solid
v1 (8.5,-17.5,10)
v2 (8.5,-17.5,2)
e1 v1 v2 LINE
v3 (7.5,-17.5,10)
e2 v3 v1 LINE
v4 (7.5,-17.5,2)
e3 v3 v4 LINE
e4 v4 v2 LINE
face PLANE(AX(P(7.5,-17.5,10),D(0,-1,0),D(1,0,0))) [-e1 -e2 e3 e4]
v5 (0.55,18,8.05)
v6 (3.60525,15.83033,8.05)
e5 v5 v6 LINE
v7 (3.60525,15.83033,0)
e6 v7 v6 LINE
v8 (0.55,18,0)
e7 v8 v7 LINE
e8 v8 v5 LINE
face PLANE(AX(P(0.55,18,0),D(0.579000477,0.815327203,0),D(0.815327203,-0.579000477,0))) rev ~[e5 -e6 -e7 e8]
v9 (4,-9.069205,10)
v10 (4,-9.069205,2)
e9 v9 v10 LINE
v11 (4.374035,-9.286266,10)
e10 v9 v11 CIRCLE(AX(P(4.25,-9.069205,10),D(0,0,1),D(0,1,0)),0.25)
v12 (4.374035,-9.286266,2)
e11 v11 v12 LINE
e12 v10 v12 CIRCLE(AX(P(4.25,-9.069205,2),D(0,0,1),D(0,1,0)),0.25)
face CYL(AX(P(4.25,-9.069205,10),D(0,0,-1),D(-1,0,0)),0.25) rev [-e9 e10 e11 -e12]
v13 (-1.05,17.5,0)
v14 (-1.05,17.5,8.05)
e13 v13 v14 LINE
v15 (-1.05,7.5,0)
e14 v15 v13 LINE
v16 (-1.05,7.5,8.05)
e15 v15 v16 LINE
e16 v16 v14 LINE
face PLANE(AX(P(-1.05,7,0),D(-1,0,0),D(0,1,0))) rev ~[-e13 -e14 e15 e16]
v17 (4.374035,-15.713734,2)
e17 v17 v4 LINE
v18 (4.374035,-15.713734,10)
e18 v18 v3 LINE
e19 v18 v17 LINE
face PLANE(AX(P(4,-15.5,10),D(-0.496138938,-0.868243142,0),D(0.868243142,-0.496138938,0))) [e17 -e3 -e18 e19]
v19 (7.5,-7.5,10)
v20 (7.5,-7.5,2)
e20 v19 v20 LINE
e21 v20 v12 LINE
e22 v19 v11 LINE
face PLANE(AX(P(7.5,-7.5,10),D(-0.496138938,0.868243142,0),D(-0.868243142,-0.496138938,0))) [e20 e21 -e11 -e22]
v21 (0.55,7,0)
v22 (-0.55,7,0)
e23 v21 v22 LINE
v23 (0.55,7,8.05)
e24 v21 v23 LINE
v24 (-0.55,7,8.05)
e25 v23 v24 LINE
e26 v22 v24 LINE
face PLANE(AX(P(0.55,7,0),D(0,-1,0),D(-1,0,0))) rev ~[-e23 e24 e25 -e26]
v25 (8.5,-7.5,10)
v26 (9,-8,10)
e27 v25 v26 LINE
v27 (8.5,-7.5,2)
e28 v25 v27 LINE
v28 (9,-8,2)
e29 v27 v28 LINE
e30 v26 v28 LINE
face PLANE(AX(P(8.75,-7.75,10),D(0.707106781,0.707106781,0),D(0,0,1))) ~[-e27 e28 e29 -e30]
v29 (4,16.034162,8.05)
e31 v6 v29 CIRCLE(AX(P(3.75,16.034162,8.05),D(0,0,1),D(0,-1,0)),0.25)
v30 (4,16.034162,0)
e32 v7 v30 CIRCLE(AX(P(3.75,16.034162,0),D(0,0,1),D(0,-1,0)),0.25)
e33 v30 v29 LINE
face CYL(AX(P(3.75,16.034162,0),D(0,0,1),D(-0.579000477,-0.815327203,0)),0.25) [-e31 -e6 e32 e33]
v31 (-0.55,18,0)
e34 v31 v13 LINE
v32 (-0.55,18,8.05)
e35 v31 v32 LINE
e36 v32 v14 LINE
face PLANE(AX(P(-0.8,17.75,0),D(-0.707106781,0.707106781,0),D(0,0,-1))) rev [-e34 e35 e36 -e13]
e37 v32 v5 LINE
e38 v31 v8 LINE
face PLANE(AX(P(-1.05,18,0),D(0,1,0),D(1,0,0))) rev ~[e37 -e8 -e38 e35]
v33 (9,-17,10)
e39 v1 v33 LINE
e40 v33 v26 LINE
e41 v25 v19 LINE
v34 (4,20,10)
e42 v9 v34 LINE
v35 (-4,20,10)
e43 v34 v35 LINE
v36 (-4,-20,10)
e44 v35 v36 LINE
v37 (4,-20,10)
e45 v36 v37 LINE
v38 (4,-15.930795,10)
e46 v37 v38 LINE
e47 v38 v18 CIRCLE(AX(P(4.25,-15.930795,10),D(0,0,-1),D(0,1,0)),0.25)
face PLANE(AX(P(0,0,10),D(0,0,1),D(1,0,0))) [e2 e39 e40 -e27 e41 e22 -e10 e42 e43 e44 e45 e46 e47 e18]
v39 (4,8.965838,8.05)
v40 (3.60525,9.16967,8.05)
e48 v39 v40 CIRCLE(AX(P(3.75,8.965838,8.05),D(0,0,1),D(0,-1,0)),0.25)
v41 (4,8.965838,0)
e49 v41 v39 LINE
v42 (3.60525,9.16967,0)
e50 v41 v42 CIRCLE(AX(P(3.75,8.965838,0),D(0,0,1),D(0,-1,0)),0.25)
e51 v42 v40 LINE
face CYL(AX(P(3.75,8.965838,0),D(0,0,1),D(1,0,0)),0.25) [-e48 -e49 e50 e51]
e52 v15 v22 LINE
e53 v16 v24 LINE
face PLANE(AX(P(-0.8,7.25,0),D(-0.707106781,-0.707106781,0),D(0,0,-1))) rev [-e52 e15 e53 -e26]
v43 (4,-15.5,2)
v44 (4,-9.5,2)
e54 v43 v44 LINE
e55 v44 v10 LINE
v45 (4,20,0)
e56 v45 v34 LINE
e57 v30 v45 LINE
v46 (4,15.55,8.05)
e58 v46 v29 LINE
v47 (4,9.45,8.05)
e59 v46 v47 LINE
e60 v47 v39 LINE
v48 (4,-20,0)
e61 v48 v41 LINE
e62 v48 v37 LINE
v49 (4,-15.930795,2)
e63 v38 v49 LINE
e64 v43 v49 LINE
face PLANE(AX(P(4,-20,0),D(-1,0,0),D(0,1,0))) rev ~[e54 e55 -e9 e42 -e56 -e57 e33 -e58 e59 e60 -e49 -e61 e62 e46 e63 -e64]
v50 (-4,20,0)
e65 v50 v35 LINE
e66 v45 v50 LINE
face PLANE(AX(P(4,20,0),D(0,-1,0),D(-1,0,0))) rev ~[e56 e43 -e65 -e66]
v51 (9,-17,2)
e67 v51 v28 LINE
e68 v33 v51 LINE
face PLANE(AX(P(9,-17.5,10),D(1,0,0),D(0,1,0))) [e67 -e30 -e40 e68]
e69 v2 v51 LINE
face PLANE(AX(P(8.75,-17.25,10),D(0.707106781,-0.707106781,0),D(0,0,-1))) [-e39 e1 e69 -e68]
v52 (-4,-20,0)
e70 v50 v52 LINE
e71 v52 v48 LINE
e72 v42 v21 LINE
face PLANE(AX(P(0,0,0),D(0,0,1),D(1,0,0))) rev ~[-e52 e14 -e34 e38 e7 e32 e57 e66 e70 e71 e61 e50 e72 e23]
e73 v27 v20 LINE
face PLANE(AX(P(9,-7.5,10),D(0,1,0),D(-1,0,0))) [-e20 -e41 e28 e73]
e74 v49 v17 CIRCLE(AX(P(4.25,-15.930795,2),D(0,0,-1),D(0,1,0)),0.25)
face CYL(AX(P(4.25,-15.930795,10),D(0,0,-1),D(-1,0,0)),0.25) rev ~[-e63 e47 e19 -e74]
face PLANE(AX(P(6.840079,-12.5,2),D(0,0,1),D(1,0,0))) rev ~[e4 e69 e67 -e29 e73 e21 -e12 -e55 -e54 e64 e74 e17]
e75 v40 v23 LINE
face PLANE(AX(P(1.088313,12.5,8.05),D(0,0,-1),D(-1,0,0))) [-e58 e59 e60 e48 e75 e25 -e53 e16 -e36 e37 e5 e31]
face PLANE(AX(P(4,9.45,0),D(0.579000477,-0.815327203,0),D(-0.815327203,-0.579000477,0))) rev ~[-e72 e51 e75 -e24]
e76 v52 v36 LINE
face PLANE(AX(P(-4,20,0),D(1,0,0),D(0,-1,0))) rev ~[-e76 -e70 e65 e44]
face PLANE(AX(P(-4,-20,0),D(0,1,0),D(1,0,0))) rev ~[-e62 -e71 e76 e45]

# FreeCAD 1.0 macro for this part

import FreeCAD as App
import Part
import Sketcher
Q = App.Units.Quantity


def edges_at(feature, points):
    """Names of the edges that pass closest to the given points."""
    edges = feature.Shape.Edges
    near = lambda p: min(range(len(edges)), key=lambda i: edges[i].distToShape(Part.Vertex(*p))[0])
    return sorted({f"Edge{near(p) + 1}" for p in points})

doc = App.newDocument("Part")
body = doc.addObject("PartDesign::Body", "Body")

# Sketch on XY plane
sketch1 = body.newObject("Sketcher::SketchObject", "Sketch")
sketch1.AttachmentSupport = (doc.getObject("XY_Plane"), [""])
sketch1.MapMode = "FlatFace"
sketch1.addGeometry([
    Part.LineSegment(App.Vector(-4, 20, 0), App.Vector(-4, -20, 0)),
    Part.LineSegment(App.Vector(-4, -20, 0), App.Vector(4, -20, 0)),
    Part.LineSegment(App.Vector(4, -20, 0), App.Vector(4, 20, 0)),
    Part.LineSegment(App.Vector(4, 20, 0), App.Vector(-4, 20, 0)),
], False)
sketch1.addConstraint([
    Sketcher.Constraint("Coincident", 0, 2, 1, 1),
    Sketcher.Constraint("Coincident", 1, 2, 2, 1),
    Sketcher.Constraint("Coincident", 2, 2, 3, 1),
    Sketcher.Constraint("Coincident", 3, 2, 0, 1),
    Sketcher.Constraint("Vertical", 0),
    Sketcher.Constraint("Horizontal", 1),
    Sketcher.Constraint("Vertical", 2),
    Sketcher.Constraint("Horizontal", 3),
    Sketcher.Constraint("Symmetric", 0, 2, 2, 2, -1, 1),
    Sketcher.Constraint("DistanceX", 0, 2, -1, 1, Q("4 mm")),
    Sketcher.Constraint("DistanceY", 0, 2, 0, 1, Q("40 mm")),
])
pad1 = body.newObject("PartDesign::Pad", "Pad")
pad1.Profile = sketch1
pad1.Length = 10

# Sketch on XY plane
sketch2 = body.newObject("Sketcher::SketchObject", "Sketch001")
sketch2.AttachmentSupport = (doc.getObject("XY_Plane"), [""])
sketch2.MapMode = "FlatFace"
sketch2.AttachmentOffset = App.Placement(App.Vector(0, 0, 10), App.Rotation())
sketch2.addGeometry([
    Part.LineSegment(App.Vector(4, -9.5, 0), App.Vector(4, -15.5, 0)),  # 0
    Part.LineSegment(App.Vector(4, -15.5, 0), App.Vector(7.5, -17.5, 0)),  # 1
    Part.LineSegment(App.Vector(7.5, -17.5, 0), App.Vector(9, -17.5, 0)),  # 2
    Part.LineSegment(App.Vector(9, -17.5, 0), App.Vector(9, -7.5, 0)),  # 3
    Part.LineSegment(App.Vector(9, -7.5, 0), App.Vector(7.5, -7.5, 0)),  # 4
    Part.LineSegment(App.Vector(7.5, -7.5, 0), App.Vector(4, -9.5, 0)),  # 5
], False)
sketch2.addConstraint([
    Sketcher.Constraint("Coincident", 0, 2, 1, 1),
    Sketcher.Constraint("Coincident", 1, 2, 2, 1),
    Sketcher.Constraint("Coincident", 2, 2, 3, 1),
    Sketcher.Constraint("Coincident", 3, 2, 4, 1),
    Sketcher.Constraint("Coincident", 4, 2, 5, 1),
    Sketcher.Constraint("Coincident", 5, 2, 0, 1),
    Sketcher.Constraint("Vertical", 0),
    Sketcher.Constraint("Horizontal", 2),
    Sketcher.Constraint("Vertical", 3),
    Sketcher.Constraint("Horizontal", 4),
    Sketcher.Constraint("Vertical", 1, 2, 4, 2),
    Sketcher.Constraint("Equal", 1, 5),
    Sketcher.Constraint("DistanceY", 0, 2, -1, 1, Q("15.5 mm")),
    Sketcher.Constraint("DistanceX", -1, 1, 1, 2, Q("7.5 mm")),
    Sketcher.Constraint("DistanceY", 1, 2, -1, 1, Q("17.5 mm")),
    Sketcher.Constraint("DistanceY", 3, 2, -1, 1, Q("7.5 mm")),
    Sketcher.Constraint("DistanceX", 2, 1, 2, 2, Q("1.5 mm")),
    Sketcher.Constraint("DistanceX", -1, 1, 0, 2, Q("4 mm")),
])
pad2 = body.newObject("PartDesign::Pad", "Pad001")
pad2.Profile = sketch2
pad2.Length = 8
pad2.Reversed = True
doc.recompute()

chamfer = body.newObject("PartDesign::Chamfer", "Chamfer")
chamfer.Base = (pad2, edges_at(pad2, [(9, -17.5, 6), (9, -7.5, 6)]))
chamfer.Size = 0.5

# Sketch on XY plane
sketch3 = body.newObject("Sketcher::SketchObject", "Sketch002")
sketch3.AttachmentSupport = (doc.getObject("XY_Plane"), [""])
sketch3.MapMode = "FlatFace"
sketch3.addGeometry([
    Part.LineSegment(App.Vector(4, 15.55, 0), App.Vector(4, 9.45, 0)),  # 0
    Part.LineSegment(App.Vector(4, 9.45, 0), App.Vector(0.55, 7, 0)),  # 1
    Part.LineSegment(App.Vector(0.55, 7, 0), App.Vector(-1.05, 7, 0)),  # 2
    Part.LineSegment(App.Vector(-1.05, 7, 0), App.Vector(-1.05, 18, 0)),  # 3
    Part.LineSegment(App.Vector(-1.05, 18, 0), App.Vector(0.55, 18, 0)),  # 4
    Part.LineSegment(App.Vector(0.55, 18, 0), App.Vector(4, 15.55, 0)),  # 5
], False)
sketch3.addConstraint([
    Sketcher.Constraint("Coincident", 0, 2, 1, 1),
    Sketcher.Constraint("Coincident", 1, 2, 2, 1),
    Sketcher.Constraint("Coincident", 2, 2, 3, 1),
    Sketcher.Constraint("Coincident", 3, 2, 4, 1),
    Sketcher.Constraint("Coincident", 4, 2, 5, 1),
    Sketcher.Constraint("Coincident", 5, 2, 0, 1),
    Sketcher.Constraint("Vertical", 0),
    Sketcher.Constraint("Horizontal", 2),
    Sketcher.Constraint("Vertical", 3),
    Sketcher.Constraint("Horizontal", 4),
    Sketcher.Constraint("Vertical", 1, 2, 4, 2),
    Sketcher.Constraint("Equal", 1, 5),
    Sketcher.Constraint("DistanceY", -1, 1, 1, 2, Q("7 mm")),
    Sketcher.Constraint("DistanceY", -1, 1, 3, 2, Q("18 mm")),
    Sketcher.Constraint("DistanceY", -1, 1, 5, 2, Q("15.55 mm")),
    Sketcher.Constraint("DistanceX", 2, 2, 2, 1, Q("1.6 mm")),
    Sketcher.Constraint("DistanceX", -1, 1, 0, 2, Q("4 mm")),
    Sketcher.Constraint("Angle", 1, Q("-144.6197 deg")),
])
pocket1 = body.newObject("PartDesign::Pocket", "Pocket")
pocket1.Profile = sketch3
pocket1.Length = 8.05
pocket1.Reversed = True
doc.recompute()

chamfer2 = body.newObject("PartDesign::Chamfer", "Chamfer001")
chamfer2.Base = (pocket1, edges_at(pocket1, [(-1.05, 18, 4.025), (-1.05, 7, 4.025)]))
chamfer2.Size = 0.5
doc.recompute()

fillet = body.newObject("PartDesign::Fillet", "Fillet")
fillet.Base = (chamfer2, edges_at(chamfer2, [
    (4, 15.55, 4.025),
    (4, 9.45, 4.025),
    (4, -9.5, 6),
    (4, -15.5, 6),
]))
fillet.Radius = 0.25

doc.recompute()
